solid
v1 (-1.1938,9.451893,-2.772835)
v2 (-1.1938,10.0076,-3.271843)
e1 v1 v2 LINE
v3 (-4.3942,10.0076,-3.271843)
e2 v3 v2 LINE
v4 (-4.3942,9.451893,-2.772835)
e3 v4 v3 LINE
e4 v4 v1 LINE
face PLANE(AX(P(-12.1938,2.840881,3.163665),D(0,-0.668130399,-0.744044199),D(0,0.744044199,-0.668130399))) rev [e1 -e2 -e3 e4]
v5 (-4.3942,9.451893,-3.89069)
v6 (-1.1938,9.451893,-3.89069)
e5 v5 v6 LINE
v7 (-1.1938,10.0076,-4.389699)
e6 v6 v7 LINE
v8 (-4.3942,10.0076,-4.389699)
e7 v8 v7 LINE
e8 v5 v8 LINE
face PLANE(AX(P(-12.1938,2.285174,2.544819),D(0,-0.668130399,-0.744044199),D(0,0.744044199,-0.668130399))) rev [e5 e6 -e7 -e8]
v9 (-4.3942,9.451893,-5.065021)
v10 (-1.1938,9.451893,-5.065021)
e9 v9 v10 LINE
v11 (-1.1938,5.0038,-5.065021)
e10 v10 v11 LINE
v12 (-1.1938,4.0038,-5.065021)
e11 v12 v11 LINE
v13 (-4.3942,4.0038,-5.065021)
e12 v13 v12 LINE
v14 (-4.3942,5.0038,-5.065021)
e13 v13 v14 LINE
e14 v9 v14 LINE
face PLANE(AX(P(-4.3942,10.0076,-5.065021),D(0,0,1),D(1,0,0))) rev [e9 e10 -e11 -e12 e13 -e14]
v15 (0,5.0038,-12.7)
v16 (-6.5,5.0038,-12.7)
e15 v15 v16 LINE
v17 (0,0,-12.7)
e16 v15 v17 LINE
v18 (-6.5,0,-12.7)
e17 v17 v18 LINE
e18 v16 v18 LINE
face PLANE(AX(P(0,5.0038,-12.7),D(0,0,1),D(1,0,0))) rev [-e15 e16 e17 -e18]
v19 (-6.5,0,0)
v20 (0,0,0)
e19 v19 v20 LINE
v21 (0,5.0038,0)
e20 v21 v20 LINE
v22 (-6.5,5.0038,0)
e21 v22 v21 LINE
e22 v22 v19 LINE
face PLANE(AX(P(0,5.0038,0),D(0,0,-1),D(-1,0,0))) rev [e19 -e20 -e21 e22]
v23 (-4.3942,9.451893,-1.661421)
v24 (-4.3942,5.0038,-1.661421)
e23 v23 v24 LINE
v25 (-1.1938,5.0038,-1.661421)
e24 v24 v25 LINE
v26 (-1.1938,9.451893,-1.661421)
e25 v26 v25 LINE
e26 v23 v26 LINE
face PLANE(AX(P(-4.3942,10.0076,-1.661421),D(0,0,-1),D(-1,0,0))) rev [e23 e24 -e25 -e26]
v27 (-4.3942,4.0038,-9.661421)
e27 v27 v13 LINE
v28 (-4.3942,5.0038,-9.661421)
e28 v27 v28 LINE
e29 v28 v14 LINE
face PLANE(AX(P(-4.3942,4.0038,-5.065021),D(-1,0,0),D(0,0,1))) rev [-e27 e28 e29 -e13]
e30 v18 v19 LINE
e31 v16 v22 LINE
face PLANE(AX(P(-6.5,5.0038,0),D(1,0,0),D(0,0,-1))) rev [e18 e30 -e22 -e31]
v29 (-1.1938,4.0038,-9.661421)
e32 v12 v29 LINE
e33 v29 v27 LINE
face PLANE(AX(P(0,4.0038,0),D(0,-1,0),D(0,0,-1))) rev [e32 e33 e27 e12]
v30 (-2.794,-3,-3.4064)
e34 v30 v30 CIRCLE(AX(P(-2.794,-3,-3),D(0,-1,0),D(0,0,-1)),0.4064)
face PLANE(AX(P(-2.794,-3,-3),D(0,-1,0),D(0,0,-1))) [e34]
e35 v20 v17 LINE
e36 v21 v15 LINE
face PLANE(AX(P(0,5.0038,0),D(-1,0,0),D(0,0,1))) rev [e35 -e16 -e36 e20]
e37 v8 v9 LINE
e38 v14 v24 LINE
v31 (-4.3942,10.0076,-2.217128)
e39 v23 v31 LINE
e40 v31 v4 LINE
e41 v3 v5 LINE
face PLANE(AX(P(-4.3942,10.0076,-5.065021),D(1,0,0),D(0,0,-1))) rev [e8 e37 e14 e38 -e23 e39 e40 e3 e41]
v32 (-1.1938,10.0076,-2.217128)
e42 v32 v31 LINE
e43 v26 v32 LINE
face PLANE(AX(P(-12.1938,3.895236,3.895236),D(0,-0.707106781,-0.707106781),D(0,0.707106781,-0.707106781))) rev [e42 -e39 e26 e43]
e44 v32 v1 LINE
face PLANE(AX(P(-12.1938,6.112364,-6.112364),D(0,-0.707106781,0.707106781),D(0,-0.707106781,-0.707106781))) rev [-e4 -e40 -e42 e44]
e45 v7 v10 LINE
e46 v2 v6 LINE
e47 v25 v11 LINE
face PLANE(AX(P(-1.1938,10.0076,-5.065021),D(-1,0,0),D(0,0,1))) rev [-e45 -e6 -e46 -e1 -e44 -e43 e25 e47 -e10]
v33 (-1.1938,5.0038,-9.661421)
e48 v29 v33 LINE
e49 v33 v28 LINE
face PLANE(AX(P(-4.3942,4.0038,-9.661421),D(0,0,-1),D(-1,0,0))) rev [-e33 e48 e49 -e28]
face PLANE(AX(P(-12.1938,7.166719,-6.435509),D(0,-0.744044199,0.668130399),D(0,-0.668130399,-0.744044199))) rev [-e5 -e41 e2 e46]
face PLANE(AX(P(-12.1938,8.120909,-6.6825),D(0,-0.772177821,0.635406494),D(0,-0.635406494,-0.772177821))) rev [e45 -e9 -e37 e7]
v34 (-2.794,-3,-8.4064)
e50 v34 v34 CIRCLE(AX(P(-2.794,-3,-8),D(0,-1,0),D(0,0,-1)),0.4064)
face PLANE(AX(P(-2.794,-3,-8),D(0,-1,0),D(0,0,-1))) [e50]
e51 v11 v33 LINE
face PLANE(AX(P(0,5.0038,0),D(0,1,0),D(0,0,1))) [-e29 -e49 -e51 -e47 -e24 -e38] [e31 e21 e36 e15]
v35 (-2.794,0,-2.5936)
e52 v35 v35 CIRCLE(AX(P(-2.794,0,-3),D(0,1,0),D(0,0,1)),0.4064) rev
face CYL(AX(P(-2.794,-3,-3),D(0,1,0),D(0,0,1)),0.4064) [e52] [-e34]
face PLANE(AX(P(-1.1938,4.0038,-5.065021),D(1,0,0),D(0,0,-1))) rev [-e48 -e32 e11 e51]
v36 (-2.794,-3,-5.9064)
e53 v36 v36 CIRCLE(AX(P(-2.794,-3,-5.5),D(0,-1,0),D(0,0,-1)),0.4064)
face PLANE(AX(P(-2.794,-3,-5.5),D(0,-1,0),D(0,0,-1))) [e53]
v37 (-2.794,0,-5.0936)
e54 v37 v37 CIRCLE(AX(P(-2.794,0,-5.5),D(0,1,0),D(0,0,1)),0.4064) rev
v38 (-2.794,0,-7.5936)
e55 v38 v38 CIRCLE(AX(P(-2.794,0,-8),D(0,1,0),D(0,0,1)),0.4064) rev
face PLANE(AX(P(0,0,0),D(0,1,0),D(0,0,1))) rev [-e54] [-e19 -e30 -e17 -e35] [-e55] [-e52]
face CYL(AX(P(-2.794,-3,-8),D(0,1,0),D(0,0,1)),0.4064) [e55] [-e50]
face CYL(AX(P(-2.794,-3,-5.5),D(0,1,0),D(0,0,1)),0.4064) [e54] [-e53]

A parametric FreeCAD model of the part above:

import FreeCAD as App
import Part
import Sketcher
Q = App.Units.Quantity

doc = App.newDocument("Part")
params = doc.addObject("Spreadsheet::Sheet", "Params")
for row, (alias, value) in enumerate([
    ("sketch1_height", "0.5 in"),
    ("pad1_length", "0.197 in"),
    ("sketch2_width", "0.126 in"),
    ("sketch2_height", "0.134 in"),
    ("pad2_length", "0.197 in"),
    ("sketch3_width", "0.126 in"),
    ("pocket1_length", "1 mm"),
    ("pocket2_length", "11 mm"),
    ("sketch5_diameter", "0.032 in"),
    ("pad3_length", "3 mm"),
], start=1):
    params.set(f"A{row}", alias)
    params.set(f"B{row}", "=" + value)
    params.setAlias(f"B{row}", alias)

body = doc.addObject("PartDesign::Body", "Body")

sketch1 = body.newObject("Sketcher::SketchObject", "Sketch")
sketch1.AttachmentSupport = (doc.getObject("XZ_Plane"), [""])
sketch1.MapMode = "FlatFace"
sketch1.addGeometry(Part.LineSegment(App.Vector(-6.5, -12.7, 0), App.Vector(-6.5, 0, 0)), False)
sketch1.addGeometry(Part.LineSegment(App.Vector(-6.5, 0, 0), App.Vector(0, 0, 0)), False)
sketch1.addGeometry(Part.LineSegment(App.Vector(0, 0, 0), App.Vector(0, -12.7, 0)), False)
sketch1.addGeometry(Part.LineSegment(App.Vector(0, -12.7, 0), App.Vector(-6.5, -12.7, 0)), False)
sketch1.addConstraint(Sketcher.Constraint("Coincident", 0, 2, 1, 1))
sketch1.addConstraint(Sketcher.Constraint("Coincident", 1, 2, 2, 1))
sketch1.addConstraint(Sketcher.Constraint("Coincident", 2, 2, 3, 1))
sketch1.addConstraint(Sketcher.Constraint("Coincident", 3, 2, 0, 1))
sketch1.addConstraint(Sketcher.Constraint("Vertical", 0))
sketch1.addConstraint(Sketcher.Constraint("Horizontal", 1))
sketch1.addConstraint(Sketcher.Constraint("Vertical", 2))
sketch1.addConstraint(Sketcher.Constraint("Horizontal", 3))
sketch1.addConstraint(Sketcher.Constraint("Coincident", 1, 2, -1, 1))
sketch1.addConstraint(Sketcher.Constraint("DistanceY", 0, 1, 0, 2, Q("0.5 in")))
sketch1.addConstraint(Sketcher.Constraint("DistanceX", 1, 1, 1, 2, 6.5))
sketch1.setExpression("Constraints[9]", "Params.sketch1_height")
pad1 = body.newObject("PartDesign::Pad", "Pad")
pad1.Profile = sketch1
pad1.setExpression("Length", "Params.pad1_length")
pad1.Reversed = True

sketch2 = body.newObject("Sketcher::SketchObject", "Sketch001")
sketch2.AttachmentSupport = (doc.getObject("XZ_Plane"), [""])
sketch2.MapMode = "FlatFace"
sketch2.AttachmentOffset = App.Placement(App.Vector(0, 0, -0.197 * 25.4), App.Rotation())
sketch2.addGeometry(Part.LineSegment(App.Vector(-4.3942, -5.065021, 0), App.Vector(-4.3942, -1.661421, 0)), False)
sketch2.addGeometry(Part.LineSegment(App.Vector(-4.3942, -1.661421, 0), App.Vector(-1.1938, -1.661421, 0)), False)
sketch2.addGeometry(Part.LineSegment(App.Vector(-1.1938, -1.661421, 0), App.Vector(-1.1938, -5.065021, 0)), False)
sketch2.addGeometry(Part.LineSegment(App.Vector(-1.1938, -5.065021, 0), App.Vector(-4.3942, -5.065021, 0)), False)
sketch2.addConstraint(Sketcher.Constraint("Coincident", 0, 2, 1, 1))
sketch2.addConstraint(Sketcher.Constraint("Coincident", 1, 2, 2, 1))
sketch2.addConstraint(Sketcher.Constraint("Coincident", 2, 2, 3, 1))
sketch2.addConstraint(Sketcher.Constraint("Coincident", 3, 2, 0, 1))
sketch2.addConstraint(Sketcher.Constraint("Vertical", 0))
sketch2.addConstraint(Sketcher.Constraint("Horizontal", 1))
sketch2.addConstraint(Sketcher.Constraint("Vertical", 2))
sketch2.addConstraint(Sketcher.Constraint("Horizontal", 3))
sketch2.addConstraint(Sketcher.Constraint("DistanceX", 1, 1, 1, 2, Q("0.126 in")))
sketch2.addConstraint(Sketcher.Constraint("DistanceY", 0, 1, 0, 2, Q("0.134 in")))
sketch2.addConstraint(Sketcher.Constraint("DistanceX", 0, 2, -1, 1, Q("0.173 in")))
sketch2.addConstraint(Sketcher.Constraint("DistanceY", 0, 2, -1, 1, 1.661421))
sketch2.setExpression("Constraints[8]", "Params.sketch2_width")
sketch2.setExpression("Constraints[9]", "Params.sketch2_height")
pad2 = body.newObject("PartDesign::Pad", "Pad001")
pad2.Profile = sketch2
pad2.setExpression("Length", "Params.pad2_length")
pad2.Reversed = True

sketch3 = body.newObject("Sketcher::SketchObject", "Sketch002")
sketch3.AttachmentSupport = (doc.getObject("XZ_Plane"), [""])
sketch3.MapMode = "FlatFace"
sketch3.AttachmentOffset = App.Placement(App.Vector(0, 0, -0.197 * 25.4), App.Rotation())
sketch3.addGeometry(Part.LineSegment(App.Vector(-4.3942, -9.661421, 0), App.Vector(-4.3942, -5.065021, 0)), False)
sketch3.addGeometry(Part.LineSegment(App.Vector(-4.3942, -5.065021, 0), App.Vector(-1.1938, -5.065021, 0)), False)
sketch3.addGeometry(Part.LineSegment(App.Vector(-1.1938, -5.065021, 0), App.Vector(-1.1938, -9.661421, 0)), False)
sketch3.addGeometry(Part.LineSegment(App.Vector(-1.1938, -9.661421, 0), App.Vector(-4.3942, -9.661421, 0)), False)
sketch3.addConstraint(Sketcher.Constraint("Coincident", 0, 2, 1, 1))
sketch3.addConstraint(Sketcher.Constraint("Coincident", 1, 2, 2, 1))
sketch3.addConstraint(Sketcher.Constraint("Coincident", 2, 2, 3, 1))
sketch3.addConstraint(Sketcher.Constraint("Coincident", 3, 2, 0, 1))
sketch3.addConstraint(Sketcher.Constraint("Vertical", 0))
sketch3.addConstraint(Sketcher.Constraint("Horizontal", 1))
sketch3.addConstraint(Sketcher.Constraint("Vertical", 2))
sketch3.addConstraint(Sketcher.Constraint("Horizontal", 3))
sketch3.addConstraint(Sketcher.Constraint("DistanceX", 1, 1, 1, 2, Q("0.126 in")))
sketch3.addConstraint(Sketcher.Constraint("DistanceX", 0, 2, -1, 1, Q("0.173 in")))
sketch3.addConstraint(Sketcher.Constraint("DistanceY", 0, 1, 0, 2, 4.5964))
sketch3.addConstraint(Sketcher.Constraint("DistanceY", 0, 2, -1, 1, 5.065021))
sketch3.setExpression("Constraints[8]", "Params.sketch3_width")
pocket1 = body.newObject("PartDesign::Pocket", "Pocket")
pocket1.Profile = sketch3
pocket1.setExpression("Length", "Params.pocket1_length")
pocket1.Reversed = True

sketch4 = body.newObject("Sketcher::SketchObject", "Sketch003")
sketch4.AttachmentSupport = (doc.getObject("YZ_Plane"), [""])
sketch4.MapMode = "FlatFace"
sketch4.AttachmentOffset = App.Placement(App.Vector(0, 0, -0.047 * 25.4), App.Rotation())
sketch4.addGeometry(Part.LineSegment(App.Vector(10.0076, -1.661421, 0), App.Vector(9.451893, -1.661421, 0)), False)
sketch4.addGeometry(Part.LineSegment(App.Vector(9.451893, -1.661421, 0), App.Vector(10.0076, -2.217128, 0)), False)
sketch4.addGeometry(Part.LineSegment(App.Vector(10.0076, -2.217128, 0), App.Vector(10.0076, -1.661421, 0)), False)
sketch4.addGeometry(Part.LineSegment(App.Vector(10.0076, -3.271843, 0), App.Vector(10.0076, -2.217128, 0)), False)
sketch4.addGeometry(Part.LineSegment(App.Vector(10.0076, -2.217128, 0), App.Vector(9.451893, -2.772835, 0)), False)
sketch4.addGeometry(Part.LineSegment(App.Vector(9.451893, -2.772835, 0), App.Vector(10.0076, -3.271843, 0)), False)
sketch4.addGeometry(Part.LineSegment(App.Vector(10.0076, -4.389699, 0), App.Vector(10.0076, -3.271843, 0)), False)
sketch4.addGeometry(Part.LineSegment(App.Vector(10.0076, -3.271843, 0), App.Vector(9.451893, -3.89069, 0)), False)
sketch4.addGeometry(Part.LineSegment(App.Vector(9.451893, -3.89069, 0), App.Vector(10.0076, -4.389699, 0)), False)
sketch4.addGeometry(Part.LineSegment(App.Vector(10.0076, -5.065021, 0), App.Vector(10.0076, -4.389699, 0)), False)
sketch4.addGeometry(Part.LineSegment(App.Vector(10.0076, -4.389699, 0), App.Vector(9.451893, -5.065021, 0)), False)
sketch4.addGeometry(Part.LineSegment(App.Vector(9.451893, -5.065021, 0), App.Vector(10.0076, -5.065021, 0)), False)
sketch4.addConstraint(Sketcher.Constraint("Coincident", 0, 2, 1, 1))
sketch4.addConstraint(Sketcher.Constraint("Coincident", 1, 2, 2, 1))
sketch4.addConstraint(Sketcher.Constraint("Coincident", 2, 2, 0, 1))
sketch4.addConstraint(Sketcher.Constraint("Coincident", 3, 2, 4, 1))
sketch4.addConstraint(Sketcher.Constraint("Coincident", 4, 2, 5, 1))
sketch4.addConstraint(Sketcher.Constraint("Coincident", 5, 2, 3, 1))
sketch4.addConstraint(Sketcher.Constraint("Coincident", 6, 2, 7, 1))
sketch4.addConstraint(Sketcher.Constraint("Coincident", 7, 2, 8, 1))
sketch4.addConstraint(Sketcher.Constraint("Coincident", 8, 2, 6, 1))
sketch4.addConstraint(Sketcher.Constraint("Coincident", 9, 2, 10, 1))
sketch4.addConstraint(Sketcher.Constraint("Coincident", 10, 2, 11, 1))
sketch4.addConstraint(Sketcher.Constraint("Coincident", 11, 2, 9, 1))
sketch4.addConstraint(Sketcher.Constraint("Horizontal", 0))
sketch4.addConstraint(Sketcher.Constraint("Vertical", 2))
sketch4.addConstraint(Sketcher.Constraint("Vertical", 3))
sketch4.addConstraint(Sketcher.Constraint("Vertical", 6))
sketch4.addConstraint(Sketcher.Constraint("Vertical", 9))
sketch4.addConstraint(Sketcher.Constraint("Horizontal", 11))
sketch4.addConstraint(Sketcher.Constraint("Coincident", 3, 2, 1, 2))
sketch4.addConstraint(Sketcher.Constraint("Coincident", 6, 2, 5, 2))
sketch4.addConstraint(Sketcher.Constraint("Coincident", 9, 2, 8, 2))
sketch4.addConstraint(Sketcher.Constraint("Perpendicular", 1, 4))
sketch4.addConstraint(Sketcher.Constraint("Perpendicular", 5, 7))
sketch4.addConstraint(Sketcher.Constraint("Perpendicular", 7, 8))
sketch4.addConstraint(Sketcher.Constraint("Vertical", 0, 2, 4, 2))
sketch4.addConstraint(Sketcher.Constraint("Vertical", 4, 2, 7, 2))
sketch4.addConstraint(Sketcher.Constraint("Vertical", 7, 2, 10, 2))
sketch4.addConstraint(Sketcher.Constraint("Equal", 11, 2))
sketch4.addConstraint(Sketcher.Constraint("DistanceX", -1, 1, 1, 2, Q("0.394 in")))
sketch4.addConstraint(Sketcher.Constraint("DistanceY", 8, 2, -1, 1, 4.389699))
sketch4.addConstraint(Sketcher.Constraint("Distance", 10, 0.874569))
sketch4.addConstraint(Sketcher.Constraint("DistanceX", 0, 2, 0, 1, 0.555707))
sketch4.addConstraint(Sketcher.Constraint("DistanceY", 3, 1, 3, 2, 1.054715))
pocket2 = body.newObject("PartDesign::Pocket", "Pocket001")
pocket2.Profile = sketch4
pocket2.setExpression("Length", "Params.pocket2_length")

sketch5 = body.newObject("Sketcher::SketchObject", "Sketch004")
sketch5.AttachmentSupport = (doc.getObject("XZ_Plane"), [""])
sketch5.MapMode = "FlatFace"
sketch5.addGeometry(Part.Circle(App.Vector(-2.794, -3, 0), App.Vector(0, 0, 1), 0.4064), False)
sketch5.addGeometry(Part.Circle(App.Vector(-2.794, -5.5, 0), App.Vector(0, 0, 1), 0.4064), False)
sketch5.addGeometry(Part.Circle(App.Vector(-2.794, -8, 0), App.Vector(0, 0, 1), 0.4064), False)
sketch5.addConstraint(Sketcher.Constraint("Equal", 0, 1))
sketch5.addConstraint(Sketcher.Constraint("Equal", 1, 2))
sketch5.addConstraint(Sketcher.Constraint("Vertical", 0, 3, 1, 3))
sketch5.addConstraint(Sketcher.Constraint("Vertical", 1, 3, 2, 3))
sketch5.addConstraint(Sketcher.Constraint("Diameter", 0, Q("0.032 in")))
sketch5.addConstraint(Sketcher.Constraint("DistanceX", 0, 3, -1, 1, Q("0.11 in")))
sketch5.addConstraint(Sketcher.Constraint("DistanceY", 0, 3, -1, 1, 3.0))
sketch5.addConstraint(Sketcher.Constraint("DistanceY", 1, 3, -1, 1, 5.5))
sketch5.addConstraint(Sketcher.Constraint("DistanceY", 2, 3, -1, 1, 8.0))
sketch5.setExpression("Constraints[4]", "Params.sketch5_diameter")
pad3 = body.newObject("PartDesign::Pad", "Pad002")
pad3.Profile = sketch5
pad3.setExpression("Length", "Params.pad3_length")

doc.recompute()
